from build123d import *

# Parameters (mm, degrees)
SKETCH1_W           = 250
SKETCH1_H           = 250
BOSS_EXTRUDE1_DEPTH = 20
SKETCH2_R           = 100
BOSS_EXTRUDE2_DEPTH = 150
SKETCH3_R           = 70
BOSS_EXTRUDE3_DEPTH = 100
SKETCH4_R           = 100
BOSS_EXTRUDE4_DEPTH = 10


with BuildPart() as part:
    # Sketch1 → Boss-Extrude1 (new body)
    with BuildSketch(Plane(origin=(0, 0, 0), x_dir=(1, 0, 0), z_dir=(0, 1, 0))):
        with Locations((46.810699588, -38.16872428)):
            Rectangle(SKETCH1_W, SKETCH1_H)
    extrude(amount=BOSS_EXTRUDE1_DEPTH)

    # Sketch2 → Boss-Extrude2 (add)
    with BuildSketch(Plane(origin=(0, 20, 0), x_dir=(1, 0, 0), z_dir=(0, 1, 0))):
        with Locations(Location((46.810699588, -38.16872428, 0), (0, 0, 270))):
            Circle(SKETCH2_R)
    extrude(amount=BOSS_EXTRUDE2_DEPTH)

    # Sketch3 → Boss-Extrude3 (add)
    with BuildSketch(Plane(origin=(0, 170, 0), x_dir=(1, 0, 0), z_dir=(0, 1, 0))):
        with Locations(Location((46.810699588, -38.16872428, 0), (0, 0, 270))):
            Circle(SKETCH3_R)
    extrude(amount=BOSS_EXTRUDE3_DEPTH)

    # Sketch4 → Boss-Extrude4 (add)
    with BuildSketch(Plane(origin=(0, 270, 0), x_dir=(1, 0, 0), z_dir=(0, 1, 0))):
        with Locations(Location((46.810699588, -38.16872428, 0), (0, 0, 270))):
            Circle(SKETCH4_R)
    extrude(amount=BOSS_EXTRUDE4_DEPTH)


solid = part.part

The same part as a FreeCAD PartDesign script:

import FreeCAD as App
import Part
import Sketcher
from FreeCAD import Vector
Q = App.Units.Quantity


def add_polygon(sketch, points):
    """Adds a closed chain of lines whose ends are joined by coincident constraints."""
    first, n = sketch.GeometryCount, len(points)
    for a, b in zip(points, points[1:] + points[:1]):
        sketch.addGeometry(Part.LineSegment(App.Vector(*a, 0), App.Vector(*b, 0)), False)
    for i in range(n):
        sketch.addConstraint(Sketcher.Constraint("Coincident", first + i, 2, first + (i + 1) % n, 1))

doc = App.newDocument("Part")
body = doc.addObject("PartDesign::Body", "Body")

# Sketch on XZ plane
sketch1 = body.newObject("Sketcher::SketchObject", "Sketch")
sketch1.AttachmentSupport = (doc.getObject("XZ_Plane"), [""])
sketch1.MapMode = "FlatFace"
add_polygon(sketch1, [(-78, -87), (-78, 163), (172, 163), (172, -87)])  # lines 0-3
sketch1.addConstraint([
    Sketcher.Constraint("Vertical", 0),
    Sketcher.Constraint("Horizontal", 1),
    Sketcher.Constraint("Vertical", 2),
    Sketcher.Constraint("Horizontal", 3),
    Sketcher.Constraint("Equal", 3, 0),
    Sketcher.Constraint("DistanceX", 1, 1, 1, 2, Q("250 mm")),
    Sketcher.Constraint("DistanceX", 0, 2, -1, 1, Q("78.1893 mm")),
    Sketcher.Constraint("DistanceY", -1, 1, 0, 2, Q("163.168724 mm")),
])
pad1 = body.newObject("PartDesign::Pad", "Pad")
pad1.Profile = sketch1
pad1.Length = 20
pad1.Reversed = True

# Sketch on XZ plane
sketch2 = body.newObject("Sketcher::SketchObject", "Sketch001")
sketch2.AttachmentSupport = (doc.getObject("XZ_Plane"), [""])
sketch2.MapMode = "FlatFace"
sketch2.AttachmentOffset = App.Placement(Vector(0, 0, -20), App.Rotation())
sketch2.addGeometry(Part.Circle(Vector(47, 38, 0), Vector(0, 0, 1), 100), False)
sketch2.addConstraint([
    Sketcher.Constraint("Diameter", 0, Q("200 mm")),
    Sketcher.Constraint("DistanceX", -1, 1, 0, 3, Q("46.8107 mm")),
    Sketcher.Constraint("DistanceY", -1, 1, 0, 3, Q("38.168724 mm")),
])
pad2 = body.newObject("PartDesign::Pad", "Pad001")
pad2.Profile = sketch2
pad2.Length = 150
pad2.Reversed = True

# Sketch on XZ plane
sketch3 = body.newObject("Sketcher::SketchObject", "Sketch002")
sketch3.AttachmentSupport = (doc.getObject("XZ_Plane"), [""])
sketch3.MapMode = "FlatFace"
sketch3.AttachmentOffset = App.Placement(Vector(0, 0, -170), App.Rotation())
sketch3.addGeometry(Part.Circle(Vector(47, 38, 0), Vector(0, 0, 1), 70), False)
sketch3.addConstraint([
    Sketcher.Constraint("Diameter", 0, Q("140 mm")),
    Sketcher.Constraint("DistanceX", -1, 1, 0, 3, Q("46.8107 mm")),
    Sketcher.Constraint("DistanceY", -1, 1, 0, 3, Q("38.168724 mm")),
])
pad3 = body.newObject("PartDesign::Pad", "Pad002")
pad3.Profile = sketch3
pad3.Length = 100
pad3.Reversed = True

# Sketch on XZ plane
sketch4 = body.newObject("Sketcher::SketchObject", "Sketch003")
sketch4.AttachmentSupport = (doc.getObject("XZ_Plane"), [""])
sketch4.MapMode = "FlatFace"
sketch4.AttachmentOffset = App.Placement(Vector(0, 0, -270), App.Rotation())
sketch4.addGeometry(Part.Circle(Vector(47, 38, 0), Vector(0, 0, 1), 100), False)
sketch4.addConstraint([
    Sketcher.Constraint("Diameter", 0, Q("200 mm")),
    Sketcher.Constraint("DistanceX", -1, 1, 0, 3, Q("46.8107 mm")),
    Sketcher.Constraint("DistanceY", -1, 1, 0, 3, Q("38.168724 mm")),
])
pad4 = body.newObject("PartDesign::Pad", "Pad003")
pad4.Profile = sketch4
pad4.Length = 10
pad4.Reversed = True

doc.recompute()
